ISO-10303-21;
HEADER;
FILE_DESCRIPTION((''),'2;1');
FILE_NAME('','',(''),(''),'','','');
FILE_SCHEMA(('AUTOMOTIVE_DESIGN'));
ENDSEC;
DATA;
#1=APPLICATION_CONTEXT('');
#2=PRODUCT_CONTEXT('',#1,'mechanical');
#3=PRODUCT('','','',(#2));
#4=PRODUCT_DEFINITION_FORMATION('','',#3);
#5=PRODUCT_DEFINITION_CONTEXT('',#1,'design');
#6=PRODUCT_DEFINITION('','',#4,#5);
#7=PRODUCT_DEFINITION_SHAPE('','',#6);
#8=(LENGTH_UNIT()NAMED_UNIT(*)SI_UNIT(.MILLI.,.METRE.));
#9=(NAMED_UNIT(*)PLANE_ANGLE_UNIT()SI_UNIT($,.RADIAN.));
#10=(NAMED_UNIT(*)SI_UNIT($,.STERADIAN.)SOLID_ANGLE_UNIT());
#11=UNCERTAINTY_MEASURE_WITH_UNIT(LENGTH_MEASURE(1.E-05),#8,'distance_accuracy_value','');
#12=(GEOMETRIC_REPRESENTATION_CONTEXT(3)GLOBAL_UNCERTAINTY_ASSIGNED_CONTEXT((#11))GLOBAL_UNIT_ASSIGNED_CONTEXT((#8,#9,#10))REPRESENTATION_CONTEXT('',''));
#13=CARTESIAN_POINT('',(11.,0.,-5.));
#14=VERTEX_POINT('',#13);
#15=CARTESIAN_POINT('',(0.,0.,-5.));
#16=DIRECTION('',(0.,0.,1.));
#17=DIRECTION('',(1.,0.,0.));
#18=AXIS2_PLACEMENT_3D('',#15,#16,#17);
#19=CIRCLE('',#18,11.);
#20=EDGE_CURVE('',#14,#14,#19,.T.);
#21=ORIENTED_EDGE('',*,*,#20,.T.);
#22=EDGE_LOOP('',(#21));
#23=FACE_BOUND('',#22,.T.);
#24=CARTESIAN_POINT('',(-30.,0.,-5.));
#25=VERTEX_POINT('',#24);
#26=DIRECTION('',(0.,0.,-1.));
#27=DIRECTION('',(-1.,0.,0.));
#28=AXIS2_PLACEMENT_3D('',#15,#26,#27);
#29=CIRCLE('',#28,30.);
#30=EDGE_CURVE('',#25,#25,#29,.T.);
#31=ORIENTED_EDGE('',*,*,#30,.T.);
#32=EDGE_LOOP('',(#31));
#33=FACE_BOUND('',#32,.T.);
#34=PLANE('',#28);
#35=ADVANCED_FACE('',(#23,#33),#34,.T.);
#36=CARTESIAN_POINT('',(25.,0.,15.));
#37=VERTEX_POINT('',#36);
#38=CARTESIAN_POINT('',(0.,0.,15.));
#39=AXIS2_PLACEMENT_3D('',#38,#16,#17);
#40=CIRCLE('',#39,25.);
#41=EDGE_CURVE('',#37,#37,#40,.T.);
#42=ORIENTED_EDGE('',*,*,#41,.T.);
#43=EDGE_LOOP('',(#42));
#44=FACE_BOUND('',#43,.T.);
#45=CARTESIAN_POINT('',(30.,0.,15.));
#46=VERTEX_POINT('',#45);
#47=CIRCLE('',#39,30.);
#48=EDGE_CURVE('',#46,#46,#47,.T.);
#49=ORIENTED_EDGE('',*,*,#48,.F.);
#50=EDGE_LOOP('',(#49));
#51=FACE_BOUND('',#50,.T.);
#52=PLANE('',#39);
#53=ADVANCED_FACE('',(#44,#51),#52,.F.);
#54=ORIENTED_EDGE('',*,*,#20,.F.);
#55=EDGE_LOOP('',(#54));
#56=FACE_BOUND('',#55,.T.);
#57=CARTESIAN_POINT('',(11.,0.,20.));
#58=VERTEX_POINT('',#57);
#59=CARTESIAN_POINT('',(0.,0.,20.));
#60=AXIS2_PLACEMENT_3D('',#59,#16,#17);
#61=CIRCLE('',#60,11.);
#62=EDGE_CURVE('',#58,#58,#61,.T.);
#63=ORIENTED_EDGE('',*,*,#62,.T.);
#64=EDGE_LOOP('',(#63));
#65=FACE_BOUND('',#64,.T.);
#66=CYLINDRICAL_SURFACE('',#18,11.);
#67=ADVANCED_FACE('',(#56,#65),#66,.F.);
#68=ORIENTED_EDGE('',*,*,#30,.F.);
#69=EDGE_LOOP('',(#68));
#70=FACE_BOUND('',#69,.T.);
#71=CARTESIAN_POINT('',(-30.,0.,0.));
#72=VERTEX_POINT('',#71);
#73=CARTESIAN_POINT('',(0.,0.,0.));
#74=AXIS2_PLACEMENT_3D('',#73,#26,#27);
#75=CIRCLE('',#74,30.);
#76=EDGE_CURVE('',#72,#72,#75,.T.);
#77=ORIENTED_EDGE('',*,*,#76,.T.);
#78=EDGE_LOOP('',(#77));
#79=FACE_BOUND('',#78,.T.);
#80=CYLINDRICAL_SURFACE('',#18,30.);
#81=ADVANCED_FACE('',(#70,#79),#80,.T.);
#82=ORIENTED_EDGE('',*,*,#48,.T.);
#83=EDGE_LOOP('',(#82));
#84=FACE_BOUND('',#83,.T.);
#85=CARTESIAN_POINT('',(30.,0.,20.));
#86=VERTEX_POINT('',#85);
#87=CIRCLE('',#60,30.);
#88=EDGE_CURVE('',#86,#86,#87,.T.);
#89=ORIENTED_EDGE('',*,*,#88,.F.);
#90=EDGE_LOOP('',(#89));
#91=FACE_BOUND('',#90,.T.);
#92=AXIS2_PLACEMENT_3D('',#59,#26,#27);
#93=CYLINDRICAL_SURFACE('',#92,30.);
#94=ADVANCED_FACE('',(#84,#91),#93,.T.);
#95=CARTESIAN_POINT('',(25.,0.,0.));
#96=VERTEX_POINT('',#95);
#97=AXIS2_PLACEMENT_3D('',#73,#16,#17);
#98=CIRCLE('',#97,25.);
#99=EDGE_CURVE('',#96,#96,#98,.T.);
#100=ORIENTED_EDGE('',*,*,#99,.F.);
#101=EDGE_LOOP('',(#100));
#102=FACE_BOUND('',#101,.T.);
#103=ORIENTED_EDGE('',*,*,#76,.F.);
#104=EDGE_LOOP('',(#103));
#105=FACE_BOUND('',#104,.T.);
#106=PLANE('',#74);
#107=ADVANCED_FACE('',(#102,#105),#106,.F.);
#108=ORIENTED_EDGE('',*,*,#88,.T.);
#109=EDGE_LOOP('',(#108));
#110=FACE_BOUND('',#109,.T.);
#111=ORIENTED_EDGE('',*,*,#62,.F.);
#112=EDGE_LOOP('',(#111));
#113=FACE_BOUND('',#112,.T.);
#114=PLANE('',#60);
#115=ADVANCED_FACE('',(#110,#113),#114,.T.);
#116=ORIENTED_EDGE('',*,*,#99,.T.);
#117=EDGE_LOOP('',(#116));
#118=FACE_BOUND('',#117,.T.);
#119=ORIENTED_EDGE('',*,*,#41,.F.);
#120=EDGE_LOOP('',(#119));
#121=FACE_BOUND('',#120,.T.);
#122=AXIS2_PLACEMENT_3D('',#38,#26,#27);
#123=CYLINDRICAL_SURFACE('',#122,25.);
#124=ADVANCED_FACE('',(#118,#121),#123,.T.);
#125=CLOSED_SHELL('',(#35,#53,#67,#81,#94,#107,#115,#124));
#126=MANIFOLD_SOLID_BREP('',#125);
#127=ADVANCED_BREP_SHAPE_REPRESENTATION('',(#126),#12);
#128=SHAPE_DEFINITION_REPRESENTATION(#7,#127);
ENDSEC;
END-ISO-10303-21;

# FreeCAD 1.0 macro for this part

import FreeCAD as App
import Part
import Sketcher
Q = App.Units.Quantity

doc = App.newDocument("Part")
body = doc.addObject("PartDesign::Body", "Body")

# Sketch on XY plane
sketch1 = body.newObject("Sketcher::SketchObject", "Sketch")
sketch1.AttachmentSupport = (doc.getObject("XY_Plane"), [""])
sketch1.MapMode = "FlatFace"
sketch1.addGeometry(Part.Circle(App.Vector(0, 0, 0), App.Vector(0, 0, 1), 25), False)
sketch1.addConstraint([
    Sketcher.Constraint("Coincident", 0, 3, -1, 1),
    Sketcher.Constraint("Diameter", 0, Q("50 mm")),
])
pad1 = body.newObject("PartDesign::Pad", "Pad")
pad1.Profile = sketch1
pad1.Length = 15

# Sketch on XY plane
sketch2 = body.newObject("Sketcher::SketchObject", "Sketch001")
sketch2.AttachmentSupport = (doc.getObject("XY_Plane"), [""])
sketch2.MapMode = "FlatFace"
sketch2.addGeometry(Part.Circle(App.Vector(0, 0, 0), App.Vector(0, 0, 1), 30), False)
sketch2.addConstraint([
    Sketcher.Constraint("Coincident", 0, 3, -1, 1),
    Sketcher.Constraint("Diameter", 0, Q("60 mm")),
])
pad2 = body.newObject("PartDesign::Pad", "Pad001")
pad2.Profile = sketch2
pad2.Length = 5
pad2.Reversed = True

# Sketch on XY plane
sketch3 = body.newObject("Sketcher::SketchObject", "Sketch002")
sketch3.AttachmentSupport = (doc.getObject("XY_Plane"), [""])
sketch3.MapMode = "FlatFace"
sketch3.AttachmentOffset = App.Placement(App.Vector(0, 0, 20), App.Rotation())
sketch3.addGeometry(Part.Circle(App.Vector(0, 0, 0), App.Vector(0, 0, 1), 30), False)
sketch3.addConstraint([
    Sketcher.Constraint("Coincident", 0, 3, -1, 1),
    Sketcher.Constraint("Diameter", 0, Q("60 mm")),
])
pad3 = body.newObject("PartDesign::Pad", "Pad002")
pad3.Profile = sketch3
pad3.Length = 5
pad3.Reversed = True

# Sketch on XY plane
sketch4 = body.newObject("Sketcher::SketchObject", "Sketch003")
sketch4.AttachmentSupport = (doc.getObject("XY_Plane"), [""])
sketch4.MapMode = "FlatFace"
sketch4.AttachmentOffset = App.Placement(App.Vector(0, 0, 20), App.Rotation())
sketch4.addGeometry(Part.Circle(App.Vector(0, 0, 0), App.Vector(0, 0, 1), 11), False)
sketch4.addConstraint([
    Sketcher.Constraint("Coincident", 0, 3, -1, 1),
    Sketcher.Constraint("Diameter", 0, Q("22 mm")),
])
pocket1 = body.newObject("PartDesign::Pocket", "Pocket")
pocket1.Profile = sketch4
pocket1.Type = "ThroughAll"

doc.recompute()
